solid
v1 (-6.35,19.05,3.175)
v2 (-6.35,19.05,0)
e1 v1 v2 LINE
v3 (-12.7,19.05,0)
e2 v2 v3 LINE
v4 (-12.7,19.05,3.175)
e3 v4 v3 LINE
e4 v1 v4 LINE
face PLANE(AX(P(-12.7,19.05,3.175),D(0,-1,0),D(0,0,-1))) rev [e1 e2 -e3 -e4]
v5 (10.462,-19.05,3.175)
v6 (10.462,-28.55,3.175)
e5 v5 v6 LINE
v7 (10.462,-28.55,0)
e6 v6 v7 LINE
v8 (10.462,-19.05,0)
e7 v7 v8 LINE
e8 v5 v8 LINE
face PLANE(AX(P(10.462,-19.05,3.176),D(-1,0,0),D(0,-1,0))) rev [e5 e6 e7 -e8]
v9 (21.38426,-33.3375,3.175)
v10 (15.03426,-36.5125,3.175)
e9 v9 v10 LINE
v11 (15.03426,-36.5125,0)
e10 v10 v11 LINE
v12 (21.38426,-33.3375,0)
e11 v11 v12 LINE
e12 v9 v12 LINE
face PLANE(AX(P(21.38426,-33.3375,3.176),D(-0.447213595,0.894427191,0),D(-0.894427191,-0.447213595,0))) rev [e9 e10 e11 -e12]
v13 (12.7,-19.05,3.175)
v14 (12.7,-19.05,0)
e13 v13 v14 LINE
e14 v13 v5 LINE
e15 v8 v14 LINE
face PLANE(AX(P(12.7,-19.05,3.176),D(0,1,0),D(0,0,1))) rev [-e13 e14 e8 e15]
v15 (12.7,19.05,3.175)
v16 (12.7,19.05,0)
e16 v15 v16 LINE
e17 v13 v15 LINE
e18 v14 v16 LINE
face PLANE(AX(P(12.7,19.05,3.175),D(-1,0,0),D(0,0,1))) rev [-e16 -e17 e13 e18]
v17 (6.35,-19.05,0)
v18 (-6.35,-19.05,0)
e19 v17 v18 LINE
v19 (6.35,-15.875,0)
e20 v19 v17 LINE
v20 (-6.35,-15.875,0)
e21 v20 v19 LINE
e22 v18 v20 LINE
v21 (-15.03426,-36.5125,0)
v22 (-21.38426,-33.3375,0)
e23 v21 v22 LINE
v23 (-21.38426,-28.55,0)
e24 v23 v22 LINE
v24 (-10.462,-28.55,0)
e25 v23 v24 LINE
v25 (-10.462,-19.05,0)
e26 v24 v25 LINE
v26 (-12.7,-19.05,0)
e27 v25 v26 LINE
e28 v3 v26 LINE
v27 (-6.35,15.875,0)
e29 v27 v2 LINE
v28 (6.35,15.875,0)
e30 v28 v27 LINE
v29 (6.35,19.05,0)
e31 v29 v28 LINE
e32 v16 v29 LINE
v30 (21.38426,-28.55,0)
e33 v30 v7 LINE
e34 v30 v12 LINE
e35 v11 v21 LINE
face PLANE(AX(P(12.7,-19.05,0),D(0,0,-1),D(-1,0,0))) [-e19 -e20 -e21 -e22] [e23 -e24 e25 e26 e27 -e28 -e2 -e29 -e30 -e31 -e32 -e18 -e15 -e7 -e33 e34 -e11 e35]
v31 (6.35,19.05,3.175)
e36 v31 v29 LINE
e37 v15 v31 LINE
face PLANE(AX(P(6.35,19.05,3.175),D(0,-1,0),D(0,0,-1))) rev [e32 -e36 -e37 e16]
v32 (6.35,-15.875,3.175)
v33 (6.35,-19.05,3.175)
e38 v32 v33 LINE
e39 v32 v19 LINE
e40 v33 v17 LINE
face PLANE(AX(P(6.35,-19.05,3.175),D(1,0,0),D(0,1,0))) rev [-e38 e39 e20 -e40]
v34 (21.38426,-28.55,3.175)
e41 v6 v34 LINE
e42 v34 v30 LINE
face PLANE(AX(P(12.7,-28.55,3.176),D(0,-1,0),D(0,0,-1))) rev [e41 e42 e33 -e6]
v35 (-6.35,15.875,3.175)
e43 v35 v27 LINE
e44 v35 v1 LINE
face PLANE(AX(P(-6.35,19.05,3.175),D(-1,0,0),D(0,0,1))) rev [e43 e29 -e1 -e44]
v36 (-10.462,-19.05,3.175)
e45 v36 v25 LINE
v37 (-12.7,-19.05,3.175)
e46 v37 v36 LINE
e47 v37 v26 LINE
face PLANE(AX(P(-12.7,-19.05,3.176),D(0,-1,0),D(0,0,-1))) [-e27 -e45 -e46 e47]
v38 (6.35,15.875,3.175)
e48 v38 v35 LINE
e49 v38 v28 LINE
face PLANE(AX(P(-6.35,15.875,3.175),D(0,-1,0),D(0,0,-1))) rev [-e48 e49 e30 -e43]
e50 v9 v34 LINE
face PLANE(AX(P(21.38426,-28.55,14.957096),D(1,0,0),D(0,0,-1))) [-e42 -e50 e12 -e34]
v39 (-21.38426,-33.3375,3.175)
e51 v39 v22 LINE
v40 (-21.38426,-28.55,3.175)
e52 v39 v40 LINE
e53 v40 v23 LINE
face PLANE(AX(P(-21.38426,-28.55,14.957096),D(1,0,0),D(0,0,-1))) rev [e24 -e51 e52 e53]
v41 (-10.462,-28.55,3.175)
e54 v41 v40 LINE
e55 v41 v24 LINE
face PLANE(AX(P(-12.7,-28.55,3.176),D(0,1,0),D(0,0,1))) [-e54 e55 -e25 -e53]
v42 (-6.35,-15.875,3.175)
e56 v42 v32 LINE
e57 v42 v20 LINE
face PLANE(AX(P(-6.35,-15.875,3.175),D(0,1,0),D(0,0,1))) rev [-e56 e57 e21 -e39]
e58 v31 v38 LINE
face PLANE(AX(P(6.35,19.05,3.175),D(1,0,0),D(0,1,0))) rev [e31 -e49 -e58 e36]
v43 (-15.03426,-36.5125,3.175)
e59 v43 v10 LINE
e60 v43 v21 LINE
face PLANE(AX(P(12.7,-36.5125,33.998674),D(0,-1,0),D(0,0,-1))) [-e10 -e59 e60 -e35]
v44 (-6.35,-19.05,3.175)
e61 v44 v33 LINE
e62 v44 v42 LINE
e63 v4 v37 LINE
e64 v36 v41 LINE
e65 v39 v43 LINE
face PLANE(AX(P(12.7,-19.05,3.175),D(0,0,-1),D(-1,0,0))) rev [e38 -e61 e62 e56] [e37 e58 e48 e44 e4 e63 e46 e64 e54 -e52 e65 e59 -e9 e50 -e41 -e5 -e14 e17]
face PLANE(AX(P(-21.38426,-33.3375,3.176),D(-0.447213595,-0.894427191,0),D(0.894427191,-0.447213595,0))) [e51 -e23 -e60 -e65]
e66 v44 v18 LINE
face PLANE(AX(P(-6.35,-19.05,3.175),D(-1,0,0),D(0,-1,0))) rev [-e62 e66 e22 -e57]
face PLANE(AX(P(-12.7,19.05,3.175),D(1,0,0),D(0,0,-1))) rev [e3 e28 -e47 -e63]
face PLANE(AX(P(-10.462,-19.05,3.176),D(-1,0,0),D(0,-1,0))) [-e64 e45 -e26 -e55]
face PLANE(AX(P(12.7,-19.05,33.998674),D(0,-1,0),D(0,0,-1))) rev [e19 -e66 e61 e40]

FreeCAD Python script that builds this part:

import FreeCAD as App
import Part
import Sketcher

V = App.Vector
Q = App.Units.Quantity

doc = App.newDocument("Part")
params = doc.addObject("Spreadsheet::Sheet", "Params")
for row, (alias, value) in enumerate([
    ("sketch1_width", "0.5 in"),
    ("sketch1_height", "1.5 in"),
    ("sketch1_height2", "0.125 in"),
    ("pad1_length", "0.125 in"),
    ("sketch2_width", "1 in"),
    ("sketch2_height", "0.6875 in"),
    ("pad2_length", "0.125 in"),
    ("pocket1_length", "0.125 in"),
    ("pad3_length", "0.125 in"),
    ("sketch5_width", "0.25 in"),
    ("sketch5_height", "0.125 in"),
    ("pocket2_length", "0.125 in"),
], start=1):
    params.set(f"A{row}", alias)
    params.set(f"B{row}", "=" + value)
    params.setAlias(f"B{row}", alias)

body = doc.addObject("PartDesign::Body", "Body")

# Sketch on XY plane
sketch1 = doc.addObject("Sketcher::SketchObject", "Sketch")
body.addObject(sketch1)
sketch1.AttachmentSupport = (doc.XY_Plane, [""])
sketch1.MapMode = "FlatFace"
sketch1.addGeometry(Part.LineSegment(V(-6.35, 19.05, 0), V(-12.7, 19.05, 0)), False)
sketch1.addGeometry(Part.LineSegment(V(-12.7, 19.05, 0), V(-12.7, -19.05, 0)), False)
sketch1.addGeometry(Part.LineSegment(V(-12.7, -19.05, 0), V(-6.35, -19.05, 0)), False)
sketch1.addGeometry(Part.LineSegment(V(-6.35, -19.05, 0), V(-6.35, -15.875, 0)), False)
sketch1.addGeometry(Part.LineSegment(V(-6.35, -15.875, 0), V(6.35, -15.875, 0)), False)
sketch1.addGeometry(Part.LineSegment(V(6.35, -15.875, 0), V(6.35, -19.05, 0)), False)
sketch1.addGeometry(Part.LineSegment(V(6.35, -19.05, 0), V(12.7, -19.05, 0)), False)
sketch1.addGeometry(Part.LineSegment(V(12.7, -19.05, 0), V(12.7, 19.05, 0)), False)
sketch1.addGeometry(Part.LineSegment(V(12.7, 19.05, 0), V(6.35, 19.05, 0)), False)
sketch1.addGeometry(Part.LineSegment(V(6.35, 19.05, 0), V(6.35, 15.875, 0)), False)
sketch1.addGeometry(Part.LineSegment(V(6.35, 15.875, 0), V(-6.35, 15.875, 0)), False)
sketch1.addGeometry(Part.LineSegment(V(-6.35, 15.875, 0), V(-6.35, 19.05, 0)), False)
sketch1.addConstraint(Sketcher.Constraint("Coincident", 0, 2, 1, 1))
sketch1.addConstraint(Sketcher.Constraint("Coincident", 1, 2, 2, 1))
sketch1.addConstraint(Sketcher.Constraint("Coincident", 2, 2, 3, 1))
sketch1.addConstraint(Sketcher.Constraint("Coincident", 3, 2, 4, 1))
sketch1.addConstraint(Sketcher.Constraint("Coincident", 4, 2, 5, 1))
sketch1.addConstraint(Sketcher.Constraint("Coincident", 5, 2, 6, 1))
sketch1.addConstraint(Sketcher.Constraint("Coincident", 6, 2, 7, 1))
sketch1.addConstraint(Sketcher.Constraint("Coincident", 7, 2, 8, 1))
sketch1.addConstraint(Sketcher.Constraint("Coincident", 8, 2, 9, 1))
sketch1.addConstraint(Sketcher.Constraint("Coincident", 9, 2, 10, 1))
sketch1.addConstraint(Sketcher.Constraint("Coincident", 10, 2, 11, 1))
sketch1.addConstraint(Sketcher.Constraint("Coincident", 11, 2, 0, 1))
sketch1.addConstraint(Sketcher.Constraint("Horizontal", 0))
sketch1.addConstraint(Sketcher.Constraint("Vertical", 1))
sketch1.addConstraint(Sketcher.Constraint("Horizontal", 2))
sketch1.addConstraint(Sketcher.Constraint("Vertical", 3))
sketch1.addConstraint(Sketcher.Constraint("Horizontal", 4))
sketch1.addConstraint(Sketcher.Constraint("Vertical", 5))
sketch1.addConstraint(Sketcher.Constraint("Horizontal", 6))
sketch1.addConstraint(Sketcher.Constraint("Vertical", 7))
sketch1.addConstraint(Sketcher.Constraint("Horizontal", 8))
sketch1.addConstraint(Sketcher.Constraint("Vertical", 9))
sketch1.addConstraint(Sketcher.Constraint("Horizontal", 10))
sketch1.addConstraint(Sketcher.Constraint("Vertical", 11))
sketch1.addConstraint(Sketcher.Constraint("Symmetric", 0, 2, 6, 2, -1, 1))
sketch1.addConstraint(Sketcher.Constraint("Symmetric", 2, 2, 8, 2, -1, 1))
sketch1.addConstraint(Sketcher.Constraint("Symmetric", 4, 2, 10, 2, -1, 1))
sketch1.addConstraint(Sketcher.Constraint("Symmetric", 2, 2, 5, 2, -2))
sketch1.addConstraint(Sketcher.Constraint("DistanceX", 4, 1, 4, 2, Q("0.5 in")))
sketch1.addConstraint(Sketcher.Constraint("DistanceY", 1, 2, 1, 1, Q("1.5 in")))
sketch1.addConstraint(Sketcher.Constraint("DistanceX", 1, 2, 6, 2, Q("1 in")))
sketch1.addConstraint(Sketcher.Constraint("DistanceY", 3, 1, 3, 2, Q("0.125 in")))
sketch1.setExpression("Constraints[28]", "Params.sketch1_width")
sketch1.setExpression("Constraints[29]", "Params.sketch1_height")
sketch1.setExpression("Constraints[31]", "Params.sketch1_height2")
pad1 = doc.addObject("PartDesign::Pad", "Pad")
body.addObject(pad1)
pad1.Profile = sketch1
pad1.setExpression("Length", "Params.pad1_length")

# Sketch on XY plane
sketch2 = doc.addObject("Sketcher::SketchObject", "Sketch001")
body.addObject(sketch2)
sketch2.AttachmentSupport = (doc.XY_Plane, [""])
sketch2.MapMode = "FlatFace"
sketch2.addGeometry(Part.LineSegment(V(12.7, -19.05, 0), V(12.7, -36.5125, 0)), False)
sketch2.addGeometry(Part.LineSegment(V(12.7, -36.5125, 0), V(-12.7, -36.5125, 0)), False)
sketch2.addGeometry(Part.LineSegment(V(-12.7, -36.5125, 0), V(-12.7, -19.05, 0)), False)
sketch2.addGeometry(Part.LineSegment(V(-12.7, -19.05, 0), V(12.7, -19.05, 0)), False)
sketch2.addConstraint(Sketcher.Constraint("Coincident", 0, 2, 1, 1))
sketch2.addConstraint(Sketcher.Constraint("Coincident", 1, 2, 2, 1))
sketch2.addConstraint(Sketcher.Constraint("Coincident", 2, 2, 3, 1))
sketch2.addConstraint(Sketcher.Constraint("Coincident", 3, 2, 0, 1))
sketch2.addConstraint(Sketcher.Constraint("Vertical", 0))
sketch2.addConstraint(Sketcher.Constraint("Horizontal", 1))
sketch2.addConstraint(Sketcher.Constraint("Vertical", 2))
sketch2.addConstraint(Sketcher.Constraint("Horizontal", 3))
sketch2.addConstraint(Sketcher.Constraint("DistanceX", 1, 2, 1, 1, Q("1 in")))
sketch2.addConstraint(Sketcher.Constraint("DistanceX", -1, 1, 0, 2, Q("0.5 in")))
sketch2.addConstraint(Sketcher.Constraint("DistanceY", 0, 2, 0, 1, Q("0.6875 in")))
sketch2.addConstraint(Sketcher.Constraint("DistanceY", 2, 2, -1, 1, Q("0.75 in")))
sketch2.setExpression("Constraints[8]", "Params.sketch2_width")
sketch2.setExpression("Constraints[10]", "Params.sketch2_height")
pad2 = doc.addObject("PartDesign::Pad", "Pad001")
body.addObject(pad2)
pad2.Profile = sketch2
pad2.setExpression("Length", "Params.pad2_length")

# Sketch on XY plane
sketch3 = doc.addObject("Sketcher::SketchObject", "Sketch002")
body.addObject(sketch3)
sketch3.AttachmentSupport = (doc.XY_Plane, [""])
sketch3.MapMode = "FlatFace"
sketch3.addGeometry(Part.LineSegment(V(12.7, -19.05, 0), V(12.7, -28.55, 0)), False)
sketch3.addGeometry(Part.LineSegment(V(12.7, -28.55, 0), V(10.462, -28.55, 0)), False)
sketch3.addGeometry(Part.LineSegment(V(10.462, -28.55, 0), V(10.462, -19.05, 0)), False)
sketch3.addGeometry(Part.LineSegment(V(10.462, -19.05, 0), V(12.7, -19.05, 0)), False)
sketch3.addConstraint(Sketcher.Constraint("Coincident", 0, 2, 1, 1))
sketch3.addConstraint(Sketcher.Constraint("Coincident", 1, 2, 2, 1))
sketch3.addConstraint(Sketcher.Constraint("Coincident", 2, 2, 3, 1))
sketch3.addConstraint(Sketcher.Constraint("Coincident", 3, 2, 0, 1))
sketch3.addConstraint(Sketcher.Constraint("Vertical", 0))
sketch3.addConstraint(Sketcher.Constraint("Horizontal", 1))
sketch3.addConstraint(Sketcher.Constraint("Vertical", 2))
sketch3.addConstraint(Sketcher.Constraint("Horizontal", 3))
sketch3.addConstraint(Sketcher.Constraint("DistanceX", -1, 1, 0, 2, Q("0.5 in")))
sketch3.addConstraint(Sketcher.Constraint("DistanceY", 2, 2, -1, 1, Q("0.75 in")))
sketch3.addConstraint(Sketcher.Constraint("DistanceX", 1, 2, 1, 1, 2.238))
sketch3.addConstraint(Sketcher.Constraint("DistanceY", 0, 2, 0, 1, 9.5))
pocket1 = doc.addObject("PartDesign::Pocket", "Pocket")
body.addObject(pocket1)
pocket1.Profile = sketch3
pocket1.setExpression("Length", "Params.pocket1_length")
pocket1.Reversed = True

# Sketch on XY plane
sketch4 = doc.addObject("Sketcher::SketchObject", "Sketch003")
body.addObject(sketch4)
sketch4.AttachmentSupport = (doc.XY_Plane, [""])
sketch4.MapMode = "FlatFace"
sketch4.addGeometry(Part.LineSegment(V(21.38426, -28.55, 0), V(21.38426, -36.5125, 0)), False)
sketch4.addGeometry(Part.LineSegment(V(21.38426, -36.5125, 0), V(12.7, -36.5125, 0)), False)
sketch4.addGeometry(Part.LineSegment(V(12.7, -36.5125, 0), V(12.7, -28.55, 0)), False)
sketch4.addGeometry(Part.LineSegment(V(12.7, -28.55, 0), V(21.38426, -28.55, 0)), False)
sketch4.addConstraint(Sketcher.Constraint("Coincident", 0, 2, 1, 1))
sketch4.addConstraint(Sketcher.Constraint("Coincident", 1, 2, 2, 1))
sketch4.addConstraint(Sketcher.Constraint("Coincident", 2, 2, 3, 1))
sketch4.addConstraint(Sketcher.Constraint("Coincident", 3, 2, 0, 1))
sketch4.addConstraint(Sketcher.Constraint("Vertical", 0))
sketch4.addConstraint(Sketcher.Constraint("Horizontal", 1))
sketch4.addConstraint(Sketcher.Constraint("Vertical", 2))
sketch4.addConstraint(Sketcher.Constraint("Horizontal", 3))
sketch4.addConstraint(Sketcher.Constraint("DistanceX", -1, 1, 1, 2, Q("0.5 in")))
sketch4.addConstraint(Sketcher.Constraint("DistanceX", 1, 2, 1, 1, Q("0.3419 in")))
sketch4.addConstraint(Sketcher.Constraint("DistanceY", 0, 2, -1, 1, Q("1.4375 in")))
sketch4.addConstraint(Sketcher.Constraint("DistanceY", 0, 2, 0, 1, 7.9625))
pad3 = doc.addObject("PartDesign::Pad", "Pad002")
body.addObject(pad3)
pad3.Profile = sketch4
pad3.setExpression("Length", "Params.pad3_length")

# Sketch on XY plane
sketch5 = doc.addObject("Sketcher::SketchObject", "Sketch004")
body.addObject(sketch5)
sketch5.AttachmentSupport = (doc.XY_Plane, [""])
sketch5.MapMode = "FlatFace"
sketch5.addGeometry(Part.LineSegment(V(15.03426, -36.5125, 0), V(21.38426, -33.3375, 0)), False)
sketch5.addGeometry(Part.LineSegment(V(21.38426, -33.3375, 0), V(21.38426, -36.5125, 0)), False)
sketch5.addGeometry(Part.LineSegment(V(21.38426, -36.5125, 0), V(15.03426, -36.5125, 0)), False)
sketch5.addConstraint(Sketcher.Constraint("Coincident", 0, 2, 1, 1))
sketch5.addConstraint(Sketcher.Constraint("Coincident", 1, 2, 2, 1))
sketch5.addConstraint(Sketcher.Constraint("Coincident", 2, 2, 0, 1))
sketch5.addConstraint(Sketcher.Constraint("Vertical", 1))
sketch5.addConstraint(Sketcher.Constraint("Horizontal", 2))
sketch5.addConstraint(Sketcher.Constraint("DistanceX", 2, 2, 2, 1, Q("0.25 in")))
sketch5.addConstraint(Sketcher.Constraint("DistanceY", 1, 2, 1, 1, Q("0.125 in")))
sketch5.addConstraint(Sketcher.Constraint("DistanceY", 0, 2, -1, 1, Q("1.3125 in")))
sketch5.addConstraint(Sketcher.Constraint("DistanceX", -1, 1, 0, 2, Q("0.8419 in")))
sketch5.setExpression("Constraints[5]", "Params.sketch5_width")
sketch5.setExpression("Constraints[6]", "Params.sketch5_height")
pocket2 = doc.addObject("PartDesign::Pocket", "Pocket001")
body.addObject(pocket2)
pocket2.Profile = sketch5
pocket2.setExpression("Length", "Params.pocket2_length")
pocket2.Reversed = True
doc.recompute()

mirrored = doc.addObject("PartDesign::Mirrored", "Mirrored")
body.addObject(mirrored)
mirrored.Originals = [pocket1, pad3, pocket2]
mirrored.MirrorPlane = (doc.YZ_Plane, [""])
body.Tip = mirrored

doc.recompute()
